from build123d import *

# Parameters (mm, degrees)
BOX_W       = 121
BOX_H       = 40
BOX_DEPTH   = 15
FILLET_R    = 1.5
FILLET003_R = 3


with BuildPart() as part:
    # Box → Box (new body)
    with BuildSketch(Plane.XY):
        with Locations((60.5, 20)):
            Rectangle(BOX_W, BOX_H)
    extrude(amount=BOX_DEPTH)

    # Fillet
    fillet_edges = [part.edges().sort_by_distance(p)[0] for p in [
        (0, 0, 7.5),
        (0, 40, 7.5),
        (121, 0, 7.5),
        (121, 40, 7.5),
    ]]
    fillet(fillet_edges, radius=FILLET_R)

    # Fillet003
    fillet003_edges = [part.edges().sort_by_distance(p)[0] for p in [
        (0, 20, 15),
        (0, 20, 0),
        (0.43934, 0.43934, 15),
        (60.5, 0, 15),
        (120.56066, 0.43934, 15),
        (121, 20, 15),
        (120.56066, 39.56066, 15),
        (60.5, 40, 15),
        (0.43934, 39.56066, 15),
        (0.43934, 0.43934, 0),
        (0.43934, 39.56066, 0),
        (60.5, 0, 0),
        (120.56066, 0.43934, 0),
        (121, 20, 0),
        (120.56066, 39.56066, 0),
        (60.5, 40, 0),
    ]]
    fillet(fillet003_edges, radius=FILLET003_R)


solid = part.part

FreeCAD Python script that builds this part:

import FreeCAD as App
import Part
import Sketcher
Q = App.Units.Quantity


def edges_at(feature, points):
    """Names of the edges that pass closest to the given points."""
    edges = feature.Shape.Edges
    near = lambda p: min(range(len(edges)), key=lambda i: edges[i].distToShape(Part.Vertex(*p))[0])
    return sorted({f"Edge{near(p) + 1}" for p in points})

doc = App.newDocument("Part")
body = doc.addObject("PartDesign::Body", "Body")

# Sketch on XY plane
sketch1 = body.newObject("Sketcher::SketchObject", "Sketch")
sketch1.AttachmentSupport = (doc.getObject("XY_Plane"), [""])
sketch1.MapMode = "FlatFace"
sketch1.addGeometry([
    Part.LineSegment(App.Vector(0, 40, 0), App.Vector(0, 0, 0)),
    Part.LineSegment(App.Vector(0, 0, 0), App.Vector(121, 0, 0)),
    Part.LineSegment(App.Vector(121, 0, 0), App.Vector(121, 40, 0)),
    Part.LineSegment(App.Vector(121, 40, 0), App.Vector(0, 40, 0)),
], False)
sketch1.addConstraint([
    Sketcher.Constraint("Coincident", 0, 2, 1, 1),
    Sketcher.Constraint("Coincident", 1, 2, 2, 1),
    Sketcher.Constraint("Coincident", 2, 2, 3, 1),
    Sketcher.Constraint("Coincident", 3, 2, 0, 1),
    Sketcher.Constraint("Vertical", 0),
    Sketcher.Constraint("Horizontal", 1),
    Sketcher.Constraint("Vertical", 2),
    Sketcher.Constraint("Horizontal", 3),
    Sketcher.Constraint("Coincident", 0, 2, -1, 1),
    Sketcher.Constraint("DistanceX", 1, 1, 1, 2, Q("121 mm")),
    Sketcher.Constraint("DistanceY", 0, 2, 0, 1, Q("40 mm")),
])
pad1 = body.newObject("PartDesign::Pad", "Pad")
pad1.Profile = sketch1
pad1.Length = 15
doc.recompute()

fillet = body.newObject("PartDesign::Fillet", "Fillet")
fillet.Base = (pad1, edges_at(pad1, [
    (0, 0, 7.5),
    (0, 40, 7.5),
    (121, 0, 7.5),
    (121, 40, 7.5),
]))
fillet.Radius = 1.5
doc.recompute()

fillet2 = body.newObject("PartDesign::Fillet", "Fillet001")
fillet2.Base = (fillet, edges_at(fillet, [
    (0, 20, 15),
    (0, 20, 0),
    (0.439, 0.439, 15),
    (60.5, 0, 15),
    (120.561, 0.439, 15),
    (121, 20, 15),
    (120.561, 39.561, 15),
    (60.5, 40, 15),
    (0.439, 39.561, 15),
    (0.439, 0.439, 0),
    (0.439, 39.561, 0),
    (60.5, 0, 0),
    (120.561, 0.439, 0),
    (121, 20, 0),
    (120.561, 39.561, 0),
    (60.5, 40, 0),
]))
fillet2.Radius = 3

doc.recompute()
